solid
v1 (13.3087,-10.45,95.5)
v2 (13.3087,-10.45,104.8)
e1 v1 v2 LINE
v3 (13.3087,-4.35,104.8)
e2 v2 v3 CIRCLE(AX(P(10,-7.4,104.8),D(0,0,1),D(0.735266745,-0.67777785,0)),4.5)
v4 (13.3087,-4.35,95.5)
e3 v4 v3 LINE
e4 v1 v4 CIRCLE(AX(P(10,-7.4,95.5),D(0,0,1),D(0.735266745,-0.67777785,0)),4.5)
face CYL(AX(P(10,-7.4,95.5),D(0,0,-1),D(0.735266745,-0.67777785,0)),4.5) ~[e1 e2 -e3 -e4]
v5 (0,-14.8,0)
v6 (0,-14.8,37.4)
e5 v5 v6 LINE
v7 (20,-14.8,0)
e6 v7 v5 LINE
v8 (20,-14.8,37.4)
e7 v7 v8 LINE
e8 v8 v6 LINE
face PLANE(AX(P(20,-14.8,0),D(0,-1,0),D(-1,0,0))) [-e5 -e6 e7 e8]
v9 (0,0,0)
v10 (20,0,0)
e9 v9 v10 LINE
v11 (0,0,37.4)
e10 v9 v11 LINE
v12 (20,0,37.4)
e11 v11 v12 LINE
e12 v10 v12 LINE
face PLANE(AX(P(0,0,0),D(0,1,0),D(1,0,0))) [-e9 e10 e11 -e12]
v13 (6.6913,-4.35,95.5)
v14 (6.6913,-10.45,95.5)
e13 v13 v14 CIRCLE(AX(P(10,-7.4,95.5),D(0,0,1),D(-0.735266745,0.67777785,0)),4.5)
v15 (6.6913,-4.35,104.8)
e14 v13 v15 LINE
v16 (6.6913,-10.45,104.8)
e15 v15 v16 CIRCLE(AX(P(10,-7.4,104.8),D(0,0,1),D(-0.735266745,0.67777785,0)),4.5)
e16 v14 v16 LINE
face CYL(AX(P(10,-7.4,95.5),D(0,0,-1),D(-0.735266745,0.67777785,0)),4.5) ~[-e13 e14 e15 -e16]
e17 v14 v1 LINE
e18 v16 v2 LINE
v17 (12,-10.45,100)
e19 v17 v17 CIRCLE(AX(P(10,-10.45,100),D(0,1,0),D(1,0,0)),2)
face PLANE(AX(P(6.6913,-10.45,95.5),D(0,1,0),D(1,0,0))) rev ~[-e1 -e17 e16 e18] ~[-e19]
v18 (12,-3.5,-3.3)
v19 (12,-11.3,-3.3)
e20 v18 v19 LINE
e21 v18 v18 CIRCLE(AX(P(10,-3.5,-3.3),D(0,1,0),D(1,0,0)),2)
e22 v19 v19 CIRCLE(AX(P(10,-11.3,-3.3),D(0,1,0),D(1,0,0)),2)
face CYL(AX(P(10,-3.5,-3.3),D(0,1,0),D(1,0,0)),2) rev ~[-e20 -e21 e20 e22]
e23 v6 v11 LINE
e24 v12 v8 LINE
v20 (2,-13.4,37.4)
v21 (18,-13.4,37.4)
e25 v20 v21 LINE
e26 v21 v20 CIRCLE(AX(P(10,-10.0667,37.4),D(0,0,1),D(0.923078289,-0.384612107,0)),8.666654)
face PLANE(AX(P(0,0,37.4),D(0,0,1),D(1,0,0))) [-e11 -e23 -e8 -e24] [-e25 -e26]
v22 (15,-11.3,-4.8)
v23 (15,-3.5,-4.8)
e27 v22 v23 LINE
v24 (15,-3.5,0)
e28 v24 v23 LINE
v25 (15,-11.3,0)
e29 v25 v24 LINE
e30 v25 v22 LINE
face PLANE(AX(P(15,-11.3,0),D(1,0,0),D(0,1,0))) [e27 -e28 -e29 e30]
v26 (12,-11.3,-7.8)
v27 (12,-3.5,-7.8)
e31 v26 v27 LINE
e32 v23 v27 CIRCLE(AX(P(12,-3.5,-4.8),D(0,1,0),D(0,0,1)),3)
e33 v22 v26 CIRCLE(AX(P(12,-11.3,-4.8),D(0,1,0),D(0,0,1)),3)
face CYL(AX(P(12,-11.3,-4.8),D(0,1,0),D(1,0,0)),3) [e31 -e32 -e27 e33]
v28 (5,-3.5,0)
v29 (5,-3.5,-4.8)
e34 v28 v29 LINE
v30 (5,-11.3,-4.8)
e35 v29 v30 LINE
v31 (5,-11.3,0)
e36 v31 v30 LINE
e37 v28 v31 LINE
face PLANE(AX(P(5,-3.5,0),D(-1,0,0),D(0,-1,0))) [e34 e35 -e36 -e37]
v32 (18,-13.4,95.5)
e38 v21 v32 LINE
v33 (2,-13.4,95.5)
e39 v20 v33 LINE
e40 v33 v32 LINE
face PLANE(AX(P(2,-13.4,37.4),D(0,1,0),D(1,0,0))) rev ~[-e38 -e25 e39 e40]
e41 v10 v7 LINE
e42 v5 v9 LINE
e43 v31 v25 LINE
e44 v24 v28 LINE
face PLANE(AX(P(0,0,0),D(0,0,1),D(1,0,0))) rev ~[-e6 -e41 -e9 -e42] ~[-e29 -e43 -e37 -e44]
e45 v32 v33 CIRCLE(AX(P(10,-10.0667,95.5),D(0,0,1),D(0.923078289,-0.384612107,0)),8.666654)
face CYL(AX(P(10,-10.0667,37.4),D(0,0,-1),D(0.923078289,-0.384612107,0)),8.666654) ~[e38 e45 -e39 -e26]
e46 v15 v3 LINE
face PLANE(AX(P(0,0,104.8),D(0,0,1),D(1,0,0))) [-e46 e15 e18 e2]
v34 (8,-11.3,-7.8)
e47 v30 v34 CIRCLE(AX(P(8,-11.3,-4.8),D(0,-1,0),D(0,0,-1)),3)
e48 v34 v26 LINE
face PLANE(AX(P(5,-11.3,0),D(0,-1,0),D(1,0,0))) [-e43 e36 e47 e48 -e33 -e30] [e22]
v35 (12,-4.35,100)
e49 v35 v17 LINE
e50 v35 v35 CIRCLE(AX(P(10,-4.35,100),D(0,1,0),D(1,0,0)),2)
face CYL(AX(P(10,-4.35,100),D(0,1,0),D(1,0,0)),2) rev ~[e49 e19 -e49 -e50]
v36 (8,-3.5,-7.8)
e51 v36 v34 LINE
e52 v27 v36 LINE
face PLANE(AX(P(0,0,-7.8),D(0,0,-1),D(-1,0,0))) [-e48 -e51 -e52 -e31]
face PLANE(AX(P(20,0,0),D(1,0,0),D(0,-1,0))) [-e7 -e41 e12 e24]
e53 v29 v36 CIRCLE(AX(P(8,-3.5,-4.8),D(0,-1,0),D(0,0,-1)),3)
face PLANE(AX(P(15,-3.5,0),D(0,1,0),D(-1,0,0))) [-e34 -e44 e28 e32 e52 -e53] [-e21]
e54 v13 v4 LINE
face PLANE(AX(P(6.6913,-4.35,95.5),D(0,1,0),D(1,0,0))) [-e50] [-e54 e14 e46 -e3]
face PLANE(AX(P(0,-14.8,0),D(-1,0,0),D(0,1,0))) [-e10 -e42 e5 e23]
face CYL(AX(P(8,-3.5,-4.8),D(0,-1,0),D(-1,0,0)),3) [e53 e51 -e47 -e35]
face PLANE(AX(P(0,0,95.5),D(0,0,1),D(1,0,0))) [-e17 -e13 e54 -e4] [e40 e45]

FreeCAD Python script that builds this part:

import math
import FreeCAD as App
import Part
import Sketcher
from FreeCAD import Vector


def edges_at(feature, points):
    """Names of the edges that pass closest to the given points."""
    edges = feature.Shape.Edges
    near = lambda p: min(range(len(edges)), key=lambda i: edges[i].distToShape(Part.Vertex(*p))[0])
    return sorted({f"Edge{near(p) + 1}" for p in points})

doc = App.newDocument("Part")
params = doc.addObject("Spreadsheet::Sheet", "Params")
for row, (alias, value) in enumerate([
    ("sketch1_width", "20 mm"),
    ("sketch1_height", "14.8 mm"),
    ("pad1_length", "37.4 mm"),
    ("sketch2_width", "16 mm"),
    ("pad2_length", "58.1 mm"),
    ("sketch3_radius", "4.5 mm"),
    ("pad3_length", "9.3 mm"),
    ("sketch4_diameter", "4 mm"),
    ("sketch5_width", "10 mm"),
    ("sketch5_height", "7.8 mm"),
    ("pad4_length", "7.8 mm"),
    ("sketch6_diameter", "4 mm"),
    ("fillet_radius", "3 mm"),
], start=1):
    params.set(f"A{row}", alias)
    params.set(f"B{row}", "=" + value)
    params.setAlias(f"B{row}", alias)

body = doc.addObject("PartDesign::Body", "Body")

# Sketch on XY plane
sketch1 = body.newObject("Sketcher::SketchObject", "Sketch")
sketch1.AttachmentSupport = (doc.getObject("XY_Plane"), [""])
sketch1.MapMode = "FlatFace"
sketch1.addGeometry([
    Part.LineSegment(Vector(20, 0, 0), Vector(0, 0, 0)),
    Part.LineSegment(Vector(0, 0, 0), Vector(0, -15, 0)),
    Part.LineSegment(Vector(0, -15, 0), Vector(20, -15, 0)),
    Part.LineSegment(Vector(20, -15, 0), Vector(20, 0, 0)),
], False)
sketch1.addConstraint([
    Sketcher.Constraint("Coincident", 0, 2, 1, 1),
    Sketcher.Constraint("Coincident", 1, 2, 2, 1),
    Sketcher.Constraint("Coincident", 2, 2, 3, 1),
    Sketcher.Constraint("Coincident", 3, 2, 0, 1),
    Sketcher.Constraint("Horizontal", 0),
    Sketcher.Constraint("Vertical", 1),
    Sketcher.Constraint("Horizontal", 2),
    Sketcher.Constraint("Vertical", 3),
    Sketcher.Constraint("Coincident", 0, 2, -1, 1),
    Sketcher.Constraint("DistanceX", 0, 2, 0, 1, 20.0),
    Sketcher.Constraint("DistanceY", 1, 2, 1, 1, 14.8),
])
sketch1.setExpression("Constraints[9]", "Params.sketch1_width")
sketch1.setExpression("Constraints[10]", "Params.sketch1_height")
pad1 = body.newObject("PartDesign::Pad", "Pad")
pad1.Profile = sketch1
pad1.setExpression("Length", "Params.pad1_length")

# Sketch on XY plane
sketch2 = body.newObject("Sketcher::SketchObject", "Sketch001")
sketch2.AttachmentSupport = (doc.getObject("XY_Plane"), [""])
sketch2.MapMode = "FlatFace"
sketch2.AttachmentOffset = App.Placement(Vector(0, 0, 37.4), App.Rotation())
sketch2.addGeometry([
    Part.ArcOfCircle(Part.Circle(Vector(10, -10, 0), Vector(0, 0, 1), 9), math.radians(-23), math.radians(203)),
    Part.LineSegment(Vector(2, -13, 0), Vector(18, -13, 0)),
], False)
sketch2.addConstraint([
    Sketcher.Constraint("Coincident", 0, 1, 1, 2),
    Sketcher.Constraint("Coincident", 1, 1, 0, 2),
    Sketcher.Constraint("Horizontal", 1),
    Sketcher.Constraint("DistanceX", 1, 1, 1, 2, 16.0),
    Sketcher.Constraint("DistanceX", -1, 1, 0, 3, 10.0),
    Sketcher.Constraint("DistanceY", 0, 1, -1, 1, 13.4),
    Sketcher.Constraint("Radius", 0, 8.6667),
])
sketch2.setExpression("Constraints[3]", "Params.sketch2_width")
pad2 = body.newObject("PartDesign::Pad", "Pad001")
pad2.Profile = sketch2
pad2.setExpression("Length", "Params.pad2_length")

# Sketch on XY plane
sketch3 = body.newObject("Sketcher::SketchObject", "Sketch002")
sketch3.AttachmentSupport = (doc.getObject("XY_Plane"), [""])
sketch3.MapMode = "FlatFace"
sketch3.AttachmentOffset = App.Placement(Vector(0, 0, 95.5), App.Rotation())
sketch3.addGeometry([
    Part.LineSegment(Vector(13.3, -4.3, 0), Vector(6.7, -4.3, 0)),
    Part.ArcOfCircle(Part.Circle(Vector(10, -7.4, 0), Vector(0, 0, 1), 4.5), math.radians(137), math.radians(223)),
    Part.LineSegment(Vector(6.7, -10.4, 0), Vector(13.3, -10.4, 0)),
    Part.ArcOfCircle(Part.Circle(Vector(10, -7.4, 0), Vector(0, 0, 1), 4.5), math.radians(-43), math.radians(43)),
], False)
sketch3.addConstraint([
    Sketcher.Constraint("Coincident", 0, 2, 1, 1),
    Sketcher.Constraint("Coincident", 1, 2, 2, 1),
    Sketcher.Constraint("Coincident", 2, 2, 3, 1),
    Sketcher.Constraint("Coincident", 3, 2, 0, 1),
    Sketcher.Constraint("Horizontal", 0),
    Sketcher.Constraint("Horizontal", 2),
    Sketcher.Constraint("Coincident", 3, 3, 1, 3),
    Sketcher.Constraint("Equal", 1, 3),
    Sketcher.Constraint("Vertical", 0, 2, 1, 2),
    Sketcher.Constraint("Radius", 1, 4.5),
    Sketcher.Constraint("DistanceX", -1, 1, 1, 3, 10.0),
    Sketcher.Constraint("DistanceY", 1, 3, -1, 1, 7.4),
    Sketcher.Constraint("DistanceY", 1, 2, 0, 2, 6.1),
])
sketch3.setExpression("Constraints[9]", "Params.sketch3_radius")
pad3 = body.newObject("PartDesign::Pad", "Pad002")
pad3.Profile = sketch3
pad3.setExpression("Length", "Params.pad3_length")

# Sketch on XZ plane
sketch4 = body.newObject("Sketcher::SketchObject", "Sketch003")
sketch4.AttachmentSupport = (doc.getObject("XZ_Plane"), [""])
sketch4.MapMode = "FlatFace"
sketch4.AttachmentOffset = App.Placement(Vector(0, 0, 4.35), App.Rotation())
sketch4.addGeometry(Part.Circle(Vector(10, 100, 0), Vector(0, 0, 1), 2), False)
sketch4.addConstraint([
    Sketcher.Constraint("Diameter", 0, 4.0),
    Sketcher.Constraint("DistanceX", -1, 1, 0, 3, 10.0),
    Sketcher.Constraint("DistanceY", -1, 1, 0, 3, 100.0),
])
sketch4.setExpression("Constraints[0]", "Params.sketch4_diameter")
pocket1 = body.newObject("PartDesign::Pocket", "Pocket")
pocket1.Profile = sketch4
pocket1.Type = "ThroughAll"
pocket1.Reversed = True

# Sketch on XY plane
sketch5 = body.newObject("Sketcher::SketchObject", "Sketch004")
sketch5.AttachmentSupport = (doc.getObject("XY_Plane"), [""])
sketch5.MapMode = "FlatFace"
sketch5.addGeometry([
    Part.LineSegment(Vector(5, -4, 0), Vector(15, -4, 0)),
    Part.LineSegment(Vector(15, -4, 0), Vector(15, -11, 0)),
    Part.LineSegment(Vector(15, -11, 0), Vector(5, -11, 0)),
    Part.LineSegment(Vector(5, -11, 0), Vector(5, -4, 0)),
], False)
sketch5.addConstraint([
    Sketcher.Constraint("Coincident", 0, 2, 1, 1),
    Sketcher.Constraint("Coincident", 1, 2, 2, 1),
    Sketcher.Constraint("Coincident", 2, 2, 3, 1),
    Sketcher.Constraint("Coincident", 3, 2, 0, 1),
    Sketcher.Constraint("Horizontal", 0),
    Sketcher.Constraint("Vertical", 1),
    Sketcher.Constraint("Horizontal", 2),
    Sketcher.Constraint("Vertical", 3),
    Sketcher.Constraint("DistanceX", 0, 1, 0, 2, 10.0),
    Sketcher.Constraint("DistanceY", 1, 2, 1, 1, 7.8),
    Sketcher.Constraint("DistanceX", -1, 1, 0, 2, 15.0),
    Sketcher.Constraint("DistanceY", 0, 2, -1, 1, 3.5),
])
sketch5.setExpression("Constraints[8]", "Params.sketch5_width")
sketch5.setExpression("Constraints[9]", "Params.sketch5_height")
pad4 = body.newObject("PartDesign::Pad", "Pad003")
pad4.Profile = sketch5
pad4.setExpression("Length", "Params.pad4_length")
pad4.Reversed = True

# Sketch on XZ plane
sketch6 = body.newObject("Sketcher::SketchObject", "Sketch005")
sketch6.AttachmentSupport = (doc.getObject("XZ_Plane"), [""])
sketch6.MapMode = "FlatFace"
sketch6.AttachmentOffset = App.Placement(Vector(0, 0, 3.5), App.Rotation())
sketch6.addGeometry(Part.Circle(Vector(10, -3.3, 0), Vector(0, 0, 1), 2), False)
sketch6.addConstraint([
    Sketcher.Constraint("Diameter", 0, 4.0),
    Sketcher.Constraint("DistanceX", -1, 1, 0, 3, 10.0),
    Sketcher.Constraint("DistanceY", 0, 3, -1, 1, 3.3),
])
sketch6.setExpression("Constraints[0]", "Params.sketch6_diameter")
pocket2 = body.newObject("PartDesign::Pocket", "Pocket001")
pocket2.Profile = sketch6
pocket2.Type = "ThroughAll"
pocket2.Reversed = True
doc.recompute()

fillet = body.newObject("PartDesign::Fillet", "Fillet")
fillet.Base = (pocket2, edges_at(pocket2, [(15, -7.4, -7.8), (5, -7.4, -7.8)]))
fillet.setExpression("Radius", "Params.fillet_radius")

doc.recompute()
